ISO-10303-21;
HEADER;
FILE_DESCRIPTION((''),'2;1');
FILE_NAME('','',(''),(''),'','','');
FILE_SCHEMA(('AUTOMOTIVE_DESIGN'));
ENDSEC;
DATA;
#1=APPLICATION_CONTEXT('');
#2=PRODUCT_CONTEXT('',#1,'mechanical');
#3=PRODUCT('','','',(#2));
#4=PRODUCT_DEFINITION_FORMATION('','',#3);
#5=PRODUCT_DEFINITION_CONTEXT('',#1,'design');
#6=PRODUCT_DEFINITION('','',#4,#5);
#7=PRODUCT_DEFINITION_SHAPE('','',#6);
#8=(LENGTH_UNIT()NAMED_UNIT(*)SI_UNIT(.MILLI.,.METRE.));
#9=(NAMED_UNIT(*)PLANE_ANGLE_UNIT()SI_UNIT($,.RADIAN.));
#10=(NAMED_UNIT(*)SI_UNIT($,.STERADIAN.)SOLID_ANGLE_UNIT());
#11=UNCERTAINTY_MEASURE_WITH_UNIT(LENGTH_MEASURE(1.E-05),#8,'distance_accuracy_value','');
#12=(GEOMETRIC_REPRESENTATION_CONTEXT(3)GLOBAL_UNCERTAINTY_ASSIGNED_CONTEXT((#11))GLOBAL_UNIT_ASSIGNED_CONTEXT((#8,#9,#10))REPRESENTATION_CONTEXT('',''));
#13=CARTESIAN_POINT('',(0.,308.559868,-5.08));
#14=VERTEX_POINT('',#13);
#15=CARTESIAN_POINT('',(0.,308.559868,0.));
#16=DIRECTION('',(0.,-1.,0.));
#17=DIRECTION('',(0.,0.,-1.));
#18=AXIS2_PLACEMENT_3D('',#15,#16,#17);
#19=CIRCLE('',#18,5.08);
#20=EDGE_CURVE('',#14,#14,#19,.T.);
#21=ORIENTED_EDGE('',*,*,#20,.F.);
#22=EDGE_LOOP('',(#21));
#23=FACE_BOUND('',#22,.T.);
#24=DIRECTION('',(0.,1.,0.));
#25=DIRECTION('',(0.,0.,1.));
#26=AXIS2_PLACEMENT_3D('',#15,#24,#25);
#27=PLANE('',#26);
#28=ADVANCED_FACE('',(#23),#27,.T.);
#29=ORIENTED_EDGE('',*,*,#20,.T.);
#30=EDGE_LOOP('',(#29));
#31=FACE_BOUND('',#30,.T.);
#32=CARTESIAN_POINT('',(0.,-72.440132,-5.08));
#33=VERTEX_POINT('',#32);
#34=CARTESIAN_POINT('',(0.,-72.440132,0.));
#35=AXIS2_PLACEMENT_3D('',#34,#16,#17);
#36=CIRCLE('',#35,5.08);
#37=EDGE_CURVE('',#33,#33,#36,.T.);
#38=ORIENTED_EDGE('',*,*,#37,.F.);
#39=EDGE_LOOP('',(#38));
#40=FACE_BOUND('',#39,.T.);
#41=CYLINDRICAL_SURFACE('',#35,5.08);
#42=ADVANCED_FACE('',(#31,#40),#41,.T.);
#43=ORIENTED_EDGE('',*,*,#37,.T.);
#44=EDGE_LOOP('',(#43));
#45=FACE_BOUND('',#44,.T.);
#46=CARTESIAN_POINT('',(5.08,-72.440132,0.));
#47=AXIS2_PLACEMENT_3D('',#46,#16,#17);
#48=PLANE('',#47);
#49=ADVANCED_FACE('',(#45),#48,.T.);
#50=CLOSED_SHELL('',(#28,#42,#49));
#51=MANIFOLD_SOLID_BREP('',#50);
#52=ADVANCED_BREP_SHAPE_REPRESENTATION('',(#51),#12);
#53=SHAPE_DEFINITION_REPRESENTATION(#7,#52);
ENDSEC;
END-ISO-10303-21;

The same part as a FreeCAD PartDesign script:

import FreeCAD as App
import Part
import Sketcher
from FreeCAD import Vector
Q = App.Units.Quantity

doc = App.newDocument("Part")
body = doc.addObject("PartDesign::Body", "Body")

# Sketch on XY plane
sketch1 = body.newObject("Sketcher::SketchObject", "Sketch")
sketch1.AttachmentSupport = (doc.getObject("XY_Plane"), [""])
sketch1.MapMode = "FlatFace"
sketch1.addGeometry(Part.LineSegment(Vector(0, 309, 0), Vector(0, -72, 0)), False)
sketch1.addGeometry(Part.LineSegment(Vector(0, -72, 0), Vector(5, -72, 0)), False)
sketch1.addGeometry(Part.LineSegment(Vector(5, -72, 0), Vector(5, 309, 0)), False)
sketch1.addGeometry(Part.LineSegment(Vector(5, 309, 0), Vector(0, 309, 0)), False)
sketch1.addConstraint(Sketcher.Constraint("Coincident", 0, 2, 1, 1))
sketch1.addConstraint(Sketcher.Constraint("Coincident", 1, 2, 2, 1))
sketch1.addConstraint(Sketcher.Constraint("Coincident", 2, 2, 3, 1))
sketch1.addConstraint(Sketcher.Constraint("Coincident", 3, 2, 0, 1))
sketch1.addConstraint(Sketcher.Constraint("Vertical", 0))
sketch1.addConstraint(Sketcher.Constraint("Horizontal", 1))
sketch1.addConstraint(Sketcher.Constraint("Vertical", 2))
sketch1.addConstraint(Sketcher.Constraint("Horizontal", 3))
sketch1.addConstraint(Sketcher.Constraint("PointOnObject", 0, 2, -2))
sketch1.addConstraint(Sketcher.Constraint("DistanceY", 0, 2, 0, 1, Q("15 in")))
sketch1.addConstraint(Sketcher.Constraint("DistanceX", 1, 1, 1, 2, Q("0.2 in")))
sketch1.addConstraint(Sketcher.Constraint("DistanceY", 0, 2, -1, 1, Q("72.440132 mm")))
revolution = body.newObject("PartDesign::Revolution", "Revolution")
revolution.Profile = sketch1
revolution.ReferenceAxis = (sketch1, ["V_Axis"])
revolution.Angle = 360

doc.recompute()
